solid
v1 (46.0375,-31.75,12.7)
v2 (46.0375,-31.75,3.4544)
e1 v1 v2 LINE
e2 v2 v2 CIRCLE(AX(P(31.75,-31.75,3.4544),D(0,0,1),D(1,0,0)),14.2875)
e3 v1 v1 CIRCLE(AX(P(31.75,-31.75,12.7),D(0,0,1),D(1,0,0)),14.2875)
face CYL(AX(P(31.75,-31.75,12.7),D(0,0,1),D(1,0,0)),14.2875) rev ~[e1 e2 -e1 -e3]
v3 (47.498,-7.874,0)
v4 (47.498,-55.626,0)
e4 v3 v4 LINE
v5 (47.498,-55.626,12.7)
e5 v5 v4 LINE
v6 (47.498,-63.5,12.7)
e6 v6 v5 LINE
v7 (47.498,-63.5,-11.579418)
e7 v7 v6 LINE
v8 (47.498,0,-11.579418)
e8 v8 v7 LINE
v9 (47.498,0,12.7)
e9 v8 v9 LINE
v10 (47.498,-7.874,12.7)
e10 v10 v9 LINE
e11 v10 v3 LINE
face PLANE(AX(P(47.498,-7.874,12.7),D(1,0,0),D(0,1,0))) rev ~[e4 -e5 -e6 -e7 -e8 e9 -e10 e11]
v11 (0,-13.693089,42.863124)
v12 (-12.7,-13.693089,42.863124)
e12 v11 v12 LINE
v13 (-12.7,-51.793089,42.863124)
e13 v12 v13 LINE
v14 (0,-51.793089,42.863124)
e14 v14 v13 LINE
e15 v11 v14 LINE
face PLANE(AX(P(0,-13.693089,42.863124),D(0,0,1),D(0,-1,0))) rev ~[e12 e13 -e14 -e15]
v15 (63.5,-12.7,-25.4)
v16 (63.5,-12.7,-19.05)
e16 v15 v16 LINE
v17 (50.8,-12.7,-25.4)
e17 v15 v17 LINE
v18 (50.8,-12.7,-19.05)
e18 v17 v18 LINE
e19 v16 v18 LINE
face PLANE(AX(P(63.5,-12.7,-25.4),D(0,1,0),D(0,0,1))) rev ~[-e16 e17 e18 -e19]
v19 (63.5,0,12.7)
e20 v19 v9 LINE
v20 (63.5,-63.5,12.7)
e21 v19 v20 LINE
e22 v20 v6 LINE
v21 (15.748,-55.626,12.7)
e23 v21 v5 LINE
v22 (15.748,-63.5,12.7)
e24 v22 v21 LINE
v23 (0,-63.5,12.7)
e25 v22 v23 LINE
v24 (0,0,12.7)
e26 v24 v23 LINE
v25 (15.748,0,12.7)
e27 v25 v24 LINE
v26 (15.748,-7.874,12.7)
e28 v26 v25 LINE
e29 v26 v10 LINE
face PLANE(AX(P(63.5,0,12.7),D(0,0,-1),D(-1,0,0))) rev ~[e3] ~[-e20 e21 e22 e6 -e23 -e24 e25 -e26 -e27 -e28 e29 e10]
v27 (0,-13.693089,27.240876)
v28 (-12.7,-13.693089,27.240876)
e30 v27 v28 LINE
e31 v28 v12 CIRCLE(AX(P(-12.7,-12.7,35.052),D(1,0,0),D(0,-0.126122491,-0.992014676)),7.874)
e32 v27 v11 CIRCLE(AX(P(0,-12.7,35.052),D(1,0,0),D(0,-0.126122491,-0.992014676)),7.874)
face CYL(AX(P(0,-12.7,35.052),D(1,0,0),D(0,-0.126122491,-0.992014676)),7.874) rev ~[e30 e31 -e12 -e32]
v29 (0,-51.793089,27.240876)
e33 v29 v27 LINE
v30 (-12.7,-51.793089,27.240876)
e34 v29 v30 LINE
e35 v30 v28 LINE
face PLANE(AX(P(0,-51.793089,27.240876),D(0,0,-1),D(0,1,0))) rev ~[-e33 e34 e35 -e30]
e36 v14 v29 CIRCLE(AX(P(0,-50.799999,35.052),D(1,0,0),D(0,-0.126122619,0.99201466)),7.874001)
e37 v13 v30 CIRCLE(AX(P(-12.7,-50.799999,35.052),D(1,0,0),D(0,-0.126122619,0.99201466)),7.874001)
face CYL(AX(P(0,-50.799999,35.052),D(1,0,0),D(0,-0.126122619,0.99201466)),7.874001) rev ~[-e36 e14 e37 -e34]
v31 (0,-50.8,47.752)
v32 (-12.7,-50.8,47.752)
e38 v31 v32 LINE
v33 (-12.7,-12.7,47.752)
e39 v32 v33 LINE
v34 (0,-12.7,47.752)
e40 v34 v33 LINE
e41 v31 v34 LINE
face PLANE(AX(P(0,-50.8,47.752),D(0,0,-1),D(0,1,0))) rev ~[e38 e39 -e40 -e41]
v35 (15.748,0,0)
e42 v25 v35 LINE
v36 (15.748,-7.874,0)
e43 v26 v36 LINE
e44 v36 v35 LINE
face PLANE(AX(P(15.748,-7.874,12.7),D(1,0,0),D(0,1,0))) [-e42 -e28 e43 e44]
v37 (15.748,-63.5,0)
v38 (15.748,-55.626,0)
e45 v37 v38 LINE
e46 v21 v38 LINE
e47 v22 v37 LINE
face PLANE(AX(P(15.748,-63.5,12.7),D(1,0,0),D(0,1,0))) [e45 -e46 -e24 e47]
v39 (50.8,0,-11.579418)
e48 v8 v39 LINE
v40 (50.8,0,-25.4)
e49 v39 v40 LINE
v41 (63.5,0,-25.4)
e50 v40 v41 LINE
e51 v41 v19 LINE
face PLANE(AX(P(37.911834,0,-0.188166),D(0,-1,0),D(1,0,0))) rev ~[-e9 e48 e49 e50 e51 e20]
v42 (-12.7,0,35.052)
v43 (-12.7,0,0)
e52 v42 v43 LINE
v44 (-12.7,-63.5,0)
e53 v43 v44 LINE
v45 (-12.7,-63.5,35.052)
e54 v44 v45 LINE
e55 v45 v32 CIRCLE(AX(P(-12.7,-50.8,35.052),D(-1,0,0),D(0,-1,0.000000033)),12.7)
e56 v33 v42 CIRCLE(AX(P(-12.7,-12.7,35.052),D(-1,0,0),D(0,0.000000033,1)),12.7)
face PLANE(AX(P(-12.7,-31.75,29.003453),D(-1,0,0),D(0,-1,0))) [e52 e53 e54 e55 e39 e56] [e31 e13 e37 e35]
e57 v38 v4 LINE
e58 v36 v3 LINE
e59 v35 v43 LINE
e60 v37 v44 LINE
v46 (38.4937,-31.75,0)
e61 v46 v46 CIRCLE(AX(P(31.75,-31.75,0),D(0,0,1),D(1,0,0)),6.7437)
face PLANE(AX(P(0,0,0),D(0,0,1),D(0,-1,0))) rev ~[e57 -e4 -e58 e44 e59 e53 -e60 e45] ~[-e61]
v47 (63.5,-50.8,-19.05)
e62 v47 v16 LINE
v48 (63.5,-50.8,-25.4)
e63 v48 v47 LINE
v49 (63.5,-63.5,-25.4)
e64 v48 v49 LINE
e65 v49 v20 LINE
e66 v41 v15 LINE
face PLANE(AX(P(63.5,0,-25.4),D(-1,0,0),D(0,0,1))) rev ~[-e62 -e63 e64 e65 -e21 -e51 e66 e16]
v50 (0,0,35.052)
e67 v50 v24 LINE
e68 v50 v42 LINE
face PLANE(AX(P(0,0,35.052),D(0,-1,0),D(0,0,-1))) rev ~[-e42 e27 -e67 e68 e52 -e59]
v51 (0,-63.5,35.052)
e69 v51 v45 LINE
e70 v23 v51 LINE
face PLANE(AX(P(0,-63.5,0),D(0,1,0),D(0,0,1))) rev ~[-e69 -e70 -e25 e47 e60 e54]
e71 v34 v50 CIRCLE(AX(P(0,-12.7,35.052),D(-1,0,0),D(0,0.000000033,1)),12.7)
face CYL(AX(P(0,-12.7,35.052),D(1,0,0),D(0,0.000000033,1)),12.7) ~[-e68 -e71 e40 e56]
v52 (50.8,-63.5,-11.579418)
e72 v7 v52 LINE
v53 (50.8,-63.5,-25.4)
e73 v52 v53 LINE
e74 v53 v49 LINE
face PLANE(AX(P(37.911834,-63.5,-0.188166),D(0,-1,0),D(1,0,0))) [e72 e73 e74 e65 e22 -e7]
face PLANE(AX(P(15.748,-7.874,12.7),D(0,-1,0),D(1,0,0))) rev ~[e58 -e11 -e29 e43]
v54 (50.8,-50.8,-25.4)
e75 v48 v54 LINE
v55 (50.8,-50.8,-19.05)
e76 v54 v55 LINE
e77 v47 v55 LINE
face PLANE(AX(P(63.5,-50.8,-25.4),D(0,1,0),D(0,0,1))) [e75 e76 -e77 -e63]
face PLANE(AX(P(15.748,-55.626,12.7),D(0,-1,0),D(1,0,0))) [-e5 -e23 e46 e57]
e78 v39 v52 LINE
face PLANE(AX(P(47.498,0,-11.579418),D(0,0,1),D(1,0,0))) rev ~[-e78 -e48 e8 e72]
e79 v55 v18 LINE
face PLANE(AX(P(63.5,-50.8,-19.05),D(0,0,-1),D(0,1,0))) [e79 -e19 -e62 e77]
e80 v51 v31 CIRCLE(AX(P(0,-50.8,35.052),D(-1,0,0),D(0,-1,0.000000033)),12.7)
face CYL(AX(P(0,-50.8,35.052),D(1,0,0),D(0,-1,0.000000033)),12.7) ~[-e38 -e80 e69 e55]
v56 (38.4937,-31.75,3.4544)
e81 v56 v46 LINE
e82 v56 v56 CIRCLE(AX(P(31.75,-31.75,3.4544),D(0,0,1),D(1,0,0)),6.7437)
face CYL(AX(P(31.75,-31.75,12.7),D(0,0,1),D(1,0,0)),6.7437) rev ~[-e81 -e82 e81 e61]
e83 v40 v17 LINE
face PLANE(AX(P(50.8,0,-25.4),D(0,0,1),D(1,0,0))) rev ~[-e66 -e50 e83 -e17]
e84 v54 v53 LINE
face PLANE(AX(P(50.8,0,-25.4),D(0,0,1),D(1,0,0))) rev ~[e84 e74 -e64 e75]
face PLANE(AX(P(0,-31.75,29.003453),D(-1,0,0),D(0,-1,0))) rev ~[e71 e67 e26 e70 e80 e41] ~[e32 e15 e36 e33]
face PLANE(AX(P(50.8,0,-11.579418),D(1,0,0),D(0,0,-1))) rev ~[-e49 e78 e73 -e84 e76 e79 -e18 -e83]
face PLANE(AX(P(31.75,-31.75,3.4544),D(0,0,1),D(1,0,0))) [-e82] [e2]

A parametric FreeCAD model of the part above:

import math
import FreeCAD as App
import Part
import Sketcher
Q = App.Units.Quantity


def add_polygon(sketch, points):
    """Adds a closed chain of lines whose ends are joined by coincident constraints."""
    first, n = sketch.GeometryCount, len(points)
    for a, b in zip(points, points[1:] + points[:1]):
        sketch.addGeometry(Part.LineSegment(App.Vector(*a, 0), App.Vector(*b, 0)), False)
    for i in range(n):
        sketch.addConstraint(Sketcher.Constraint("Coincident", first + i, 2, first + (i + 1) % n, 1))

doc = App.newDocument("Part")
body = doc.addObject("PartDesign::Body", "Body")

# Sketch on XZ plane
sketch1 = body.newObject("Sketcher::SketchObject", "Sketch")
sketch1.AttachmentSupport = (doc.getObject("XZ_Plane"), [""])
sketch1.MapMode = "FlatFace"
add_polygon(sketch1, [(0, 12.7), (0, 0), (47.5, 0), (47.5, -11.6), (50.8, -11.6), (50.8, -25.4), (63.5, -25.4), (63.5, 12.7)])  # lines 0-7
sketch1.addConstraint([
    Sketcher.Constraint("Vertical", 0),
    Sketcher.Constraint("Horizontal", 1),
    Sketcher.Constraint("Vertical", 2),
    Sketcher.Constraint("Horizontal", 3),
    Sketcher.Constraint("Vertical", 4),
    Sketcher.Constraint("Horizontal", 5),
    Sketcher.Constraint("Vertical", 6),
    Sketcher.Constraint("Horizontal", 7),
    Sketcher.Constraint("Coincident", 0, 2, -1, 1),
    Sketcher.Constraint("Equal", 5, 0),
    Sketcher.Constraint("DistanceX", 5, 1, 5, 2, Q("0.5 in")),
    Sketcher.Constraint("DistanceX", 7, 2, 7, 1, Q("2.5 in")),
    Sketcher.Constraint("DistanceY", 6, 1, 6, 2, Q("1.5 in")),
    Sketcher.Constraint("DistanceX", 1, 1, 1, 2, Q("1.87 in")),
    Sketcher.Constraint("DistanceY", 4, 2, 4, 1, 13.820582),
])
pad1 = body.newObject("PartDesign::Pad", "Pad")
pad1.Profile = sketch1
pad1.Length = Q("2.5 in")

# Sketch on YZ plane
sketch2 = body.newObject("Sketcher::SketchObject", "Sketch001")
sketch2.AttachmentSupport = (doc.getObject("YZ_Plane"), [""])
sketch2.MapMode = "FlatFace"
sketch2.AttachmentOffset = App.Placement(App.Vector(0, 0, 2.5 * 25.4), App.Rotation())
add_polygon(sketch2, [(-51, -19), (-51, -25), (-13, -25), (-13, -19)])  # lines 0-3
sketch2.addConstraint([
    Sketcher.Constraint("Vertical", 0),
    Sketcher.Constraint("Horizontal", 1),
    Sketcher.Constraint("Vertical", 2),
    Sketcher.Constraint("Horizontal", 3),
    Sketcher.Constraint("DistanceX", 1, 1, 1, 2, Q("1.5 in")),
    Sketcher.Constraint("DistanceX", 0, 2, -1, 1, Q("2 in")),
    Sketcher.Constraint("DistanceY", 0, 2, -1, 1, Q("1 in")),
    Sketcher.Constraint("DistanceY", 0, 2, 0, 1, Q("0.25 in")),
])
pocket1 = body.newObject("PartDesign::Pocket", "Pocket")
pocket1.Profile = sketch2
pocket1.Type = "ThroughAll"

# Sketch on XY plane
sketch3 = body.newObject("Sketcher::SketchObject", "Sketch002")
sketch3.AttachmentSupport = (doc.getObject("XY_Plane"), [""])
sketch3.MapMode = "FlatFace"
sketch3.AttachmentOffset = App.Placement(App.Vector(0, 0, 0.5 * 25.4), App.Rotation())
add_polygon(sketch3, [(16, 0), (16, -8), (47, -8), (47, 0)])  # lines 0-3
add_polygon(sketch3, [(16, -56), (16, -64), (47, -64), (47, -56)])  # lines 4-7
sketch3.addConstraint([
    Sketcher.Constraint("Vertical", 0),
    Sketcher.Constraint("Horizontal", 1),
    Sketcher.Constraint("Vertical", 2),
    Sketcher.Constraint("Horizontal", 3),
    Sketcher.Constraint("Vertical", 4),
    Sketcher.Constraint("Horizontal", 5),
    Sketcher.Constraint("Vertical", 6),
    Sketcher.Constraint("Horizontal", 7),
    Sketcher.Constraint("PointOnObject", 2, 2, -1),
    Sketcher.Constraint("Vertical", 3, 2, 4, 2),
    Sketcher.Constraint("Vertical", 2, 2, 5, 2),
    Sketcher.Constraint("Equal", 2, 4),
    Sketcher.Constraint("DistanceX", 1, 1, 1, 2, Q("1.25 in")),
    Sketcher.Constraint("DistanceY", 0, 2, 0, 1, Q("0.31 in")),
    Sketcher.Constraint("DistanceY", 4, 2, -1, 1, Q("2.5 in")),
    Sketcher.Constraint("DistanceX", -1, 1, 0, 2, Q("0.62 in")),
])
pocket2 = body.newObject("PartDesign::Pocket", "Pocket001")
pocket2.Profile = sketch3
pocket2.Type = "ThroughAll"

# Sketch on XY plane
sketch4 = body.newObject("Sketcher::SketchObject", "Sketch003")
sketch4.AttachmentSupport = (doc.getObject("XY_Plane"), [""])
sketch4.MapMode = "FlatFace"
sketch4.AttachmentOffset = App.Placement(App.Vector(0, 0, 0.5 * 25.4), App.Rotation())
sketch4.addGeometry([
    Part.Circle(App.Vector(32, -32, 0), App.Vector(0, 0, 1), 14),
    Part.Circle(App.Vector(32, -32, 0), App.Vector(0, 0, 1), 7),
], False)
sketch4.addConstraint([
    Sketcher.Constraint("Coincident", 1, 3, 0, 3),
    Sketcher.Constraint("Diameter", 0, Q("1.125 in")),
    Sketcher.Constraint("Diameter", 1, Q("0.531 in")),
    Sketcher.Constraint("DistanceX", -1, 1, 0, 3, Q("1.25 in")),
    Sketcher.Constraint("DistanceY", 0, 3, -1, 1, Q("1.25 in")),
])
pocket3 = body.newObject("PartDesign::Pocket", "Pocket002")
pocket3.Profile = sketch4
pocket3.Length = Q("0.364 in")

# Sketch on XY plane
sketch5 = body.newObject("Sketcher::SketchObject", "Sketch004")
sketch5.AttachmentSupport = (doc.getObject("XY_Plane"), [""])
sketch5.MapMode = "FlatFace"
sketch5.AttachmentOffset = App.Placement(App.Vector(0, 0, 0.5 * 25.4), App.Rotation())
sketch5.addGeometry(Part.Circle(App.Vector(32, -32, 0), App.Vector(0, 0, 1), 7), False)
sketch5.addConstraint([
    Sketcher.Constraint("Diameter", 0, Q("0.531 in")),
    Sketcher.Constraint("DistanceX", -1, 1, 0, 3, Q("1.25 in")),
    Sketcher.Constraint("DistanceY", 0, 3, -1, 1, Q("1.25 in")),
])
pocket4 = body.newObject("PartDesign::Pocket", "Pocket003")
pocket4.Profile = sketch5
pocket4.Type = "ThroughAll"

# Sketch on YZ plane
sketch6 = body.newObject("Sketcher::SketchObject", "Sketch005")
sketch6.AttachmentSupport = (doc.getObject("YZ_Plane"), [""])
sketch6.MapMode = "FlatFace"
sketch6.addGeometry([
    Part.LineSegment(App.Vector(0, 35, 0), App.Vector(0, 0, 0)),  # 0
    Part.LineSegment(App.Vector(0, 0, 0), App.Vector(-64, 0, 0)),  # 1
    Part.LineSegment(App.Vector(-64, 0, 0), App.Vector(-64, 35, 0)),  # 2
    Part.ArcOfCircle(Part.Circle(App.Vector(-51, 35, 0), App.Vector(0, 0, 1), 13), math.radians(90), math.radians(180)),  # 3
    Part.LineSegment(App.Vector(-51, 48, 0), App.Vector(-13, 48, 0)),  # 4
    Part.ArcOfCircle(Part.Circle(App.Vector(-13, 35, 0), App.Vector(0, 0, 1), 13), math.radians(0), math.radians(90)),  # 5
    Part.ArcOfCircle(Part.Circle(App.Vector(-13, 35, 0), App.Vector(0, 0, 1), 8), math.radians(-97), math.radians(97)),  # 6
    Part.LineSegment(App.Vector(-14, 43, 0), App.Vector(-52, 43, 0)),  # 7
    Part.ArcOfCircle(Part.Circle(App.Vector(-51, 35, 0), App.Vector(0, 0, 1), 8), math.radians(97), math.radians(263)),  # 8
    Part.LineSegment(App.Vector(-52, 27, 0), App.Vector(-14, 27, 0)),  # 9
], False)
sketch6.addConstraint([
    Sketcher.Constraint("Coincident", 0, 2, 1, 1),
    Sketcher.Constraint("Coincident", 1, 2, 2, 1),
    Sketcher.Constraint("Tangent", 2, 2, 3, 2),
    Sketcher.Constraint("Tangent", 3, 1, 4, 1),
    Sketcher.Constraint("Tangent", 4, 2, 5, 2),
    Sketcher.Constraint("Tangent", 5, 1, 0, 1),
    Sketcher.Constraint("Coincident", 6, 2, 7, 1),
    Sketcher.Constraint("Coincident", 7, 2, 8, 1),
    Sketcher.Constraint("Coincident", 8, 2, 9, 1),
    Sketcher.Constraint("Coincident", 9, 2, 6, 1),
    Sketcher.Constraint("Vertical", 0),
    Sketcher.Constraint("Horizontal", 1),
    Sketcher.Constraint("Vertical", 2),
    Sketcher.Constraint("Horizontal", 4),
    Sketcher.Constraint("Horizontal", 7),
    Sketcher.Constraint("Horizontal", 9),
    Sketcher.Constraint("Coincident", 0, 2, -1, 1),
    Sketcher.Constraint("Coincident", 6, 3, 5, 3),
    Sketcher.Constraint("Coincident", 8, 3, 3, 3),
    Sketcher.Constraint("Equal", 3, 5),
    Sketcher.Constraint("Equal", 6, 8),
    Sketcher.Constraint("Vertical", 7, 2, 8, 2),
    Sketcher.Constraint("Radius", 3, Q("0.5 in")),
    Sketcher.Constraint("Radius", 6, Q("0.31 in")),
    Sketcher.Constraint("DistanceX", 1, 2, 1, 1, Q("2.5 in")),
    Sketcher.Constraint("DistanceY", 0, 2, 0, 1, Q("1.38 in")),
    Sketcher.Constraint("DistanceX", 6, 2, -1, 1, 13.693089),
])
pad2 = body.newObject("PartDesign::Pad", "Pad001")
pad2.Profile = sketch6
pad2.Length = Q("0.5 in")
pad2.Reversed = True

doc.recompute()
